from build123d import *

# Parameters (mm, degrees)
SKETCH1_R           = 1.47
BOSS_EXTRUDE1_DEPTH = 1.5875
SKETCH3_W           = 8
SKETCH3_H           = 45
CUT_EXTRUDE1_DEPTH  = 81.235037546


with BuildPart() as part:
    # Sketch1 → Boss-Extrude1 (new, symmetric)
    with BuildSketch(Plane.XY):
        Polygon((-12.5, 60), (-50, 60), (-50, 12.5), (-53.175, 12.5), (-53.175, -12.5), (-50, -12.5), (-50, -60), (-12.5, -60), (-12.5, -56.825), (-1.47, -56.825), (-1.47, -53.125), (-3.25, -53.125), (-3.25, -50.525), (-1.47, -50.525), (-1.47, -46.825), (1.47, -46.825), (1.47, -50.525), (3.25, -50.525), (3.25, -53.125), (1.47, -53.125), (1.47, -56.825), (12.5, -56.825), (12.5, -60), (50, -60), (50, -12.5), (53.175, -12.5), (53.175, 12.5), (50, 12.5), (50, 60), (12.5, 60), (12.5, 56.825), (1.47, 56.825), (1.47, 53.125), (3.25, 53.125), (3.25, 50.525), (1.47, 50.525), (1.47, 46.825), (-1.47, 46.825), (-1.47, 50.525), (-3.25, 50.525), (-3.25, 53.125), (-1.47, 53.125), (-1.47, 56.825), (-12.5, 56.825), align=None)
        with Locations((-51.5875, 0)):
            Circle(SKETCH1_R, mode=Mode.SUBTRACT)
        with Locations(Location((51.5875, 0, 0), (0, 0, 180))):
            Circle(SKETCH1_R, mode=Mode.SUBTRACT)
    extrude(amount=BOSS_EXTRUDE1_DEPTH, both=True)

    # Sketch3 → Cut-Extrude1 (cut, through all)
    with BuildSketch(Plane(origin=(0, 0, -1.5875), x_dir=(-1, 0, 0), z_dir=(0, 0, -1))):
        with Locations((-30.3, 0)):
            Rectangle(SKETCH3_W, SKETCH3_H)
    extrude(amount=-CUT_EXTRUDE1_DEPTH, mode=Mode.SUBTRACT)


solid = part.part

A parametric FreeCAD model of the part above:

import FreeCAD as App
import Part
import Sketcher
from FreeCAD import Vector

doc = App.newDocument("Part")
body = doc.addObject("PartDesign::Body", "Body")

sketch1 = body.newObject("Sketcher::SketchObject", "Sketch")
sketch1.AttachmentSupport = (doc.getObject("XY_Plane"), [""])
sketch1.MapMode = "FlatFace"
sketch1.addGeometry(Part.LineSegment(Vector(-12.5, 60, 0), Vector(-50, 60, 0)), False)
sketch1.addGeometry(Part.LineSegment(Vector(-50, 60, 0), Vector(-50, 12.5, 0)), False)
sketch1.addGeometry(Part.LineSegment(Vector(-50, 12.5, 0), Vector(-53.175, 12.5, 0)), False)
sketch1.addGeometry(Part.LineSegment(Vector(-53.175, 12.5, 0), Vector(-53.175, -12.5, 0)), False)
sketch1.addGeometry(Part.LineSegment(Vector(-53.175, -12.5, 0), Vector(-50, -12.5, 0)), False)
sketch1.addGeometry(Part.LineSegment(Vector(-50, -12.5, 0), Vector(-50, -60, 0)), False)
sketch1.addGeometry(Part.LineSegment(Vector(-50, -60, 0), Vector(-12.5, -60, 0)), False)
sketch1.addGeometry(Part.LineSegment(Vector(-12.5, -60, 0), Vector(-12.5, -56.825, 0)), False)
sketch1.addGeometry(Part.LineSegment(Vector(-12.5, -56.825, 0), Vector(-1.47, -56.825, 0)), False)
sketch1.addGeometry(Part.LineSegment(Vector(-1.47, -56.825, 0), Vector(-1.47, -53.125, 0)), False)
sketch1.addGeometry(Part.LineSegment(Vector(-1.47, -53.125, 0), Vector(-3.25, -53.125, 0)), False)
sketch1.addGeometry(Part.LineSegment(Vector(-3.25, -53.125, 0), Vector(-3.25, -50.525, 0)), False)
sketch1.addGeometry(Part.LineSegment(Vector(-3.25, -50.525, 0), Vector(-1.47, -50.525, 0)), False)
sketch1.addGeometry(Part.LineSegment(Vector(-1.47, -50.525, 0), Vector(-1.47, -46.825, 0)), False)
sketch1.addGeometry(Part.LineSegment(Vector(-1.47, -46.825, 0), Vector(1.47, -46.825, 0)), False)
sketch1.addGeometry(Part.LineSegment(Vector(1.47, -46.825, 0), Vector(1.47, -50.525, 0)), False)
sketch1.addGeometry(Part.LineSegment(Vector(1.47, -50.525, 0), Vector(3.25, -50.525, 0)), False)
sketch1.addGeometry(Part.LineSegment(Vector(3.25, -50.525, 0), Vector(3.25, -53.125, 0)), False)
sketch1.addGeometry(Part.LineSegment(Vector(3.25, -53.125, 0), Vector(1.47, -53.125, 0)), False)
sketch1.addGeometry(Part.LineSegment(Vector(1.47, -53.125, 0), Vector(1.47, -56.825, 0)), False)
sketch1.addGeometry(Part.LineSegment(Vector(1.47, -56.825, 0), Vector(12.5, -56.825, 0)), False)
sketch1.addGeometry(Part.LineSegment(Vector(12.5, -56.825, 0), Vector(12.5, -60, 0)), False)
sketch1.addGeometry(Part.LineSegment(Vector(12.5, -60, 0), Vector(50, -60, 0)), False)
sketch1.addGeometry(Part.LineSegment(Vector(50, -60, 0), Vector(50, -12.5, 0)), False)
sketch1.addGeometry(Part.LineSegment(Vector(50, -12.5, 0), Vector(53.175, -12.5, 0)), False)
sketch1.addGeometry(Part.LineSegment(Vector(53.175, -12.5, 0), Vector(53.175, 12.5, 0)), False)
sketch1.addGeometry(Part.LineSegment(Vector(53.175, 12.5, 0), Vector(50, 12.5, 0)), False)
sketch1.addGeometry(Part.LineSegment(Vector(50, 12.5, 0), Vector(50, 60, 0)), False)
sketch1.addGeometry(Part.LineSegment(Vector(50, 60, 0), Vector(12.5, 60, 0)), False)
sketch1.addGeometry(Part.LineSegment(Vector(12.5, 60, 0), Vector(12.5, 56.825, 0)), False)
sketch1.addGeometry(Part.LineSegment(Vector(12.5, 56.825, 0), Vector(1.47, 56.825, 0)), False)
sketch1.addGeometry(Part.LineSegment(Vector(1.47, 56.825, 0), Vector(1.47, 53.125, 0)), False)
sketch1.addGeometry(Part.LineSegment(Vector(1.47, 53.125, 0), Vector(3.25, 53.125, 0)), False)
sketch1.addGeometry(Part.LineSegment(Vector(3.25, 53.125, 0), Vector(3.25, 50.525, 0)), False)
sketch1.addGeometry(Part.LineSegment(Vector(3.25, 50.525, 0), Vector(1.47, 50.525, 0)), False)
sketch1.addGeometry(Part.LineSegment(Vector(1.47, 50.525, 0), Vector(1.47, 46.825, 0)), False)
sketch1.addGeometry(Part.LineSegment(Vector(1.47, 46.825, 0), Vector(-1.47, 46.825, 0)), False)
sketch1.addGeometry(Part.LineSegment(Vector(-1.47, 46.825, 0), Vector(-1.47, 50.525, 0)), False)
sketch1.addGeometry(Part.LineSegment(Vector(-1.47, 50.525, 0), Vector(-3.25, 50.525, 0)), False)
sketch1.addGeometry(Part.LineSegment(Vector(-3.25, 50.525, 0), Vector(-3.25, 53.125, 0)), False)
sketch1.addGeometry(Part.LineSegment(Vector(-3.25, 53.125, 0), Vector(-1.47, 53.125, 0)), False)
sketch1.addGeometry(Part.LineSegment(Vector(-1.47, 53.125, 0), Vector(-1.47, 56.825, 0)), False)
sketch1.addGeometry(Part.LineSegment(Vector(-1.47, 56.825, 0), Vector(-12.5, 56.825, 0)), False)
sketch1.addGeometry(Part.LineSegment(Vector(-12.5, 56.825, 0), Vector(-12.5, 60, 0)), False)
sketch1.addGeometry(Part.Circle(Vector(-51.5875, 0, 0), Vector(0, 0, 1), 1.47), False)
sketch1.addGeometry(Part.Circle(Vector(51.5875, 0, 0), Vector(0, 0, 1), 1.47), False)
sketch1.addConstraint(Sketcher.Constraint("Coincident", 0, 2, 1, 1))
sketch1.addConstraint(Sketcher.Constraint("Coincident", 1, 2, 2, 1))
sketch1.addConstraint(Sketcher.Constraint("Coincident", 2, 2, 3, 1))
sketch1.addConstraint(Sketcher.Constraint("Coincident", 3, 2, 4, 1))
sketch1.addConstraint(Sketcher.Constraint("Coincident", 4, 2, 5, 1))
sketch1.addConstraint(Sketcher.Constraint("Coincident", 5, 2, 6, 1))
sketch1.addConstraint(Sketcher.Constraint("Coincident", 6, 2, 7, 1))
sketch1.addConstraint(Sketcher.Constraint("Coincident", 7, 2, 8, 1))
sketch1.addConstraint(Sketcher.Constraint("Coincident", 8, 2, 9, 1))
sketch1.addConstraint(Sketcher.Constraint("Coincident", 9, 2, 10, 1))
sketch1.addConstraint(Sketcher.Constraint("Coincident", 10, 2, 11, 1))
sketch1.addConstraint(Sketcher.Constraint("Coincident", 11, 2, 12, 1))
sketch1.addConstraint(Sketcher.Constraint("Coincident", 12, 2, 13, 1))
sketch1.addConstraint(Sketcher.Constraint("Coincident", 13, 2, 14, 1))
sketch1.addConstraint(Sketcher.Constraint("Coincident", 14, 2, 15, 1))
sketch1.addConstraint(Sketcher.Constraint("Coincident", 15, 2, 16, 1))
sketch1.addConstraint(Sketcher.Constraint("Coincident", 16, 2, 17, 1))
sketch1.addConstraint(Sketcher.Constraint("Coincident", 17, 2, 18, 1))
sketch1.addConstraint(Sketcher.Constraint("Coincident", 18, 2, 19, 1))
sketch1.addConstraint(Sketcher.Constraint("Coincident", 19, 2, 20, 1))
sketch1.addConstraint(Sketcher.Constraint("Coincident", 20, 2, 21, 1))
sketch1.addConstraint(Sketcher.Constraint("Coincident", 21, 2, 22, 1))
sketch1.addConstraint(Sketcher.Constraint("Coincident", 22, 2, 23, 1))
sketch1.addConstraint(Sketcher.Constraint("Coincident", 23, 2, 24, 1))
sketch1.addConstraint(Sketcher.Constraint("Coincident", 24, 2, 25, 1))
sketch1.addConstraint(Sketcher.Constraint("Coincident", 25, 2, 26, 1))
sketch1.addConstraint(Sketcher.Constraint("Coincident", 26, 2, 27, 1))
sketch1.addConstraint(Sketcher.Constraint("Coincident", 27, 2, 28, 1))
sketch1.addConstraint(Sketcher.Constraint("Coincident", 28, 2, 29, 1))
sketch1.addConstraint(Sketcher.Constraint("Coincident", 29, 2, 30, 1))
sketch1.addConstraint(Sketcher.Constraint("Coincident", 30, 2, 31, 1))
sketch1.addConstraint(Sketcher.Constraint("Coincident", 31, 2, 32, 1))
sketch1.addConstraint(Sketcher.Constraint("Coincident", 32, 2, 33, 1))
sketch1.addConstraint(Sketcher.Constraint("Coincident", 33, 2, 34, 1))
sketch1.addConstraint(Sketcher.Constraint("Coincident", 34, 2, 35, 1))
sketch1.addConstraint(Sketcher.Constraint("Coincident", 35, 2, 36, 1))
sketch1.addConstraint(Sketcher.Constraint("Coincident", 36, 2, 37, 1))
sketch1.addConstraint(Sketcher.Constraint("Coincident", 37, 2, 38, 1))
sketch1.addConstraint(Sketcher.Constraint("Coincident", 38, 2, 39, 1))
sketch1.addConstraint(Sketcher.Constraint("Coincident", 39, 2, 40, 1))
sketch1.addConstraint(Sketcher.Constraint("Coincident", 40, 2, 41, 1))
sketch1.addConstraint(Sketcher.Constraint("Coincident", 41, 2, 42, 1))
sketch1.addConstraint(Sketcher.Constraint("Coincident", 42, 2, 43, 1))
sketch1.addConstraint(Sketcher.Constraint("Coincident", 43, 2, 0, 1))
sketch1.addConstraint(Sketcher.Constraint("Horizontal", 0))
sketch1.addConstraint(Sketcher.Constraint("Vertical", 1))
sketch1.addConstraint(Sketcher.Constraint("Horizontal", 2))
sketch1.addConstraint(Sketcher.Constraint("Vertical", 3))
sketch1.addConstraint(Sketcher.Constraint("Horizontal", 4))
sketch1.addConstraint(Sketcher.Constraint("Vertical", 5))
sketch1.addConstraint(Sketcher.Constraint("Horizontal", 6))
sketch1.addConstraint(Sketcher.Constraint("Vertical", 7))
sketch1.addConstraint(Sketcher.Constraint("Horizontal", 8))
sketch1.addConstraint(Sketcher.Constraint("Vertical", 9))
sketch1.addConstraint(Sketcher.Constraint("Horizontal", 10))
sketch1.addConstraint(Sketcher.Constraint("Vertical", 11))
sketch1.addConstraint(Sketcher.Constraint("Horizontal", 12))
sketch1.addConstraint(Sketcher.Constraint("Vertical", 13))
sketch1.addConstraint(Sketcher.Constraint("Horizontal", 14))
sketch1.addConstraint(Sketcher.Constraint("Vertical", 15))
sketch1.addConstraint(Sketcher.Constraint("Horizontal", 16))
sketch1.addConstraint(Sketcher.Constraint("Vertical", 17))
sketch1.addConstraint(Sketcher.Constraint("Horizontal", 18))
sketch1.addConstraint(Sketcher.Constraint("Vertical", 19))
sketch1.addConstraint(Sketcher.Constraint("Horizontal", 20))
sketch1.addConstraint(Sketcher.Constraint("Vertical", 21))
sketch1.addConstraint(Sketcher.Constraint("Horizontal", 22))
sketch1.addConstraint(Sketcher.Constraint("Vertical", 23))
sketch1.addConstraint(Sketcher.Constraint("Horizontal", 24))
sketch1.addConstraint(Sketcher.Constraint("Vertical", 25))
sketch1.addConstraint(Sketcher.Constraint("Horizontal", 26))
sketch1.addConstraint(Sketcher.Constraint("Vertical", 27))
sketch1.addConstraint(Sketcher.Constraint("Horizontal", 28))
sketch1.addConstraint(Sketcher.Constraint("Vertical", 29))
sketch1.addConstraint(Sketcher.Constraint("Horizontal", 30))
sketch1.addConstraint(Sketcher.Constraint("Vertical", 31))
sketch1.addConstraint(Sketcher.Constraint("Horizontal", 32))
sketch1.addConstraint(Sketcher.Constraint("Vertical", 33))
sketch1.addConstraint(Sketcher.Constraint("Horizontal", 34))
sketch1.addConstraint(Sketcher.Constraint("Vertical", 35))
sketch1.addConstraint(Sketcher.Constraint("Horizontal", 36))
sketch1.addConstraint(Sketcher.Constraint("Vertical", 37))
sketch1.addConstraint(Sketcher.Constraint("Horizontal", 38))
sketch1.addConstraint(Sketcher.Constraint("Vertical", 39))
sketch1.addConstraint(Sketcher.Constraint("Horizontal", 40))
sketch1.addConstraint(Sketcher.Constraint("Vertical", 41))
sketch1.addConstraint(Sketcher.Constraint("Horizontal", 42))
sketch1.addConstraint(Sketcher.Constraint("Vertical", 43))
sketch1.addConstraint(Sketcher.Constraint("Equal", 44, 45))
sketch1.addConstraint(Sketcher.Constraint("Symmetric", 44, 3, 45, 3, -1, 1))
sketch1.addConstraint(Sketcher.Constraint("Symmetric", 0, 2, 22, 2, -1, 1))
sketch1.addConstraint(Sketcher.Constraint("Symmetric", 2, 2, 24, 2, -1, 1))
sketch1.addConstraint(Sketcher.Constraint("Symmetric", 4, 2, 26, 2, -1, 1))
sketch1.addConstraint(Sketcher.Constraint("Symmetric", 6, 2, 28, 2, -1, 1))
sketch1.addConstraint(Sketcher.Constraint("Symmetric", 8, 2, 30, 2, -1, 1))
sketch1.addConstraint(Sketcher.Constraint("Symmetric", 10, 2, 32, 2, -1, 1))
sketch1.addConstraint(Sketcher.Constraint("Symmetric", 12, 2, 34, 2, -1, 1))
sketch1.addConstraint(Sketcher.Constraint("Symmetric", 14, 2, 36, 2, -1, 1))
sketch1.addConstraint(Sketcher.Constraint("Symmetric", 16, 2, 38, 2, -1, 1))
sketch1.addConstraint(Sketcher.Constraint("Symmetric", 18, 2, 40, 2, -1, 1))
sketch1.addConstraint(Sketcher.Constraint("Symmetric", 20, 2, 42, 2, -1, 1))
sketch1.addConstraint(Sketcher.Constraint("Symmetric", 12, 2, 15, 2, -2))
sketch1.addConstraint(Sketcher.Constraint("Symmetric", 10, 2, 17, 2, -2))
sketch1.addConstraint(Sketcher.Constraint("Symmetric", 8, 2, 19, 2, -2))
sketch1.addConstraint(Sketcher.Constraint("Symmetric", 6, 2, 21, 2, -2))
sketch1.addConstraint(Sketcher.Constraint("Symmetric", 4, 2, 23, 2, -2))
sketch1.addConstraint(Sketcher.Constraint("PointOnObject", 44, 3, -1))
sketch1.addConstraint(Sketcher.Constraint("Vertical", 9, 2, 12, 2))
sketch1.addConstraint(Sketcher.Constraint("Equal", 26, 7))
sketch1.addConstraint(Sketcher.Constraint("Equal", 9, 13))
sketch1.addConstraint(Sketcher.Constraint("Diameter", 44, 2.94))
sketch1.addConstraint(Sketcher.Constraint("DistanceY", 3, 2, 3, 1, 25.0))
sketch1.addConstraint(Sketcher.Constraint("DistanceX", 0, 2, 0, 1, 37.5))
sketch1.addConstraint(Sketcher.Constraint("DistanceY", 1, 2, 1, 1, 47.5))
sketch1.addConstraint(Sketcher.Constraint("DistanceY", 9, 1, 9, 2, 3.7))
sketch1.addConstraint(Sketcher.Constraint("DistanceY", 11, 1, 11, 2, 2.6))
sketch1.addConstraint(Sketcher.Constraint("DistanceX", 0, 2, -1, 1, 50.0))
sketch1.addConstraint(Sketcher.Constraint("DistanceX", 8, 1, 8, 2, 11.03))
sketch1.addConstraint(Sketcher.Constraint("DistanceX", 10, 2, 10, 1, 1.78))
sketch1.addConstraint(Sketcher.Constraint("DistanceX", 2, 2, 2, 1, 3.175))
sketch1.addConstraint(Sketcher.Constraint("DistanceX", 44, 3, 45, 3, 103.175))
pad1 = body.newObject("PartDesign::Pad", "Pad")
pad1.Profile = sketch1
pad1.Length = 3.175
pad1.Midplane = True

sketch2 = body.newObject("Sketcher::SketchObject", "Sketch001")
sketch2.AttachmentSupport = (doc.getObject("XY_Plane"), [""])
sketch2.MapMode = "FlatFace"
sketch2.AttachmentOffset = App.Placement(Vector(0, 0, -1.5875), App.Rotation())
sketch2.addGeometry(Part.LineSegment(Vector(34.3, 22.5, 0), Vector(34.3, -22.5, 0)), False)
sketch2.addGeometry(Part.LineSegment(Vector(34.3, -22.5, 0), Vector(26.3, -22.5, 0)), False)
sketch2.addGeometry(Part.LineSegment(Vector(26.3, -22.5, 0), Vector(26.3, 22.5, 0)), False)
sketch2.addGeometry(Part.LineSegment(Vector(26.3, 22.5, 0), Vector(34.3, 22.5, 0)), False)
sketch2.addConstraint(Sketcher.Constraint("Coincident", 0, 2, 1, 1))
sketch2.addConstraint(Sketcher.Constraint("Coincident", 1, 2, 2, 1))
sketch2.addConstraint(Sketcher.Constraint("Coincident", 2, 2, 3, 1))
sketch2.addConstraint(Sketcher.Constraint("Coincident", 3, 2, 0, 1))
sketch2.addConstraint(Sketcher.Constraint("Vertical", 0))
sketch2.addConstraint(Sketcher.Constraint("Horizontal", 1))
sketch2.addConstraint(Sketcher.Constraint("Vertical", 2))
sketch2.addConstraint(Sketcher.Constraint("Horizontal", 3))
sketch2.addConstraint(Sketcher.Constraint("DistanceX", 1, 2, 1, 1, 8.0))
sketch2.addConstraint(Sketcher.Constraint("DistanceY", 0, 2, 0, 1, 45.0))
sketch2.addConstraint(Sketcher.Constraint("DistanceX", -1, 1, 0, 2, 34.3))
sketch2.addConstraint(Sketcher.Constraint("DistanceY", 0, 2, -1, 1, 22.5))
pocket1 = body.newObject("PartDesign::Pocket", "Pocket")
pocket1.Profile = sketch2
pocket1.Type = "ThroughAll"
pocket1.Reversed = True

doc.recompute()
